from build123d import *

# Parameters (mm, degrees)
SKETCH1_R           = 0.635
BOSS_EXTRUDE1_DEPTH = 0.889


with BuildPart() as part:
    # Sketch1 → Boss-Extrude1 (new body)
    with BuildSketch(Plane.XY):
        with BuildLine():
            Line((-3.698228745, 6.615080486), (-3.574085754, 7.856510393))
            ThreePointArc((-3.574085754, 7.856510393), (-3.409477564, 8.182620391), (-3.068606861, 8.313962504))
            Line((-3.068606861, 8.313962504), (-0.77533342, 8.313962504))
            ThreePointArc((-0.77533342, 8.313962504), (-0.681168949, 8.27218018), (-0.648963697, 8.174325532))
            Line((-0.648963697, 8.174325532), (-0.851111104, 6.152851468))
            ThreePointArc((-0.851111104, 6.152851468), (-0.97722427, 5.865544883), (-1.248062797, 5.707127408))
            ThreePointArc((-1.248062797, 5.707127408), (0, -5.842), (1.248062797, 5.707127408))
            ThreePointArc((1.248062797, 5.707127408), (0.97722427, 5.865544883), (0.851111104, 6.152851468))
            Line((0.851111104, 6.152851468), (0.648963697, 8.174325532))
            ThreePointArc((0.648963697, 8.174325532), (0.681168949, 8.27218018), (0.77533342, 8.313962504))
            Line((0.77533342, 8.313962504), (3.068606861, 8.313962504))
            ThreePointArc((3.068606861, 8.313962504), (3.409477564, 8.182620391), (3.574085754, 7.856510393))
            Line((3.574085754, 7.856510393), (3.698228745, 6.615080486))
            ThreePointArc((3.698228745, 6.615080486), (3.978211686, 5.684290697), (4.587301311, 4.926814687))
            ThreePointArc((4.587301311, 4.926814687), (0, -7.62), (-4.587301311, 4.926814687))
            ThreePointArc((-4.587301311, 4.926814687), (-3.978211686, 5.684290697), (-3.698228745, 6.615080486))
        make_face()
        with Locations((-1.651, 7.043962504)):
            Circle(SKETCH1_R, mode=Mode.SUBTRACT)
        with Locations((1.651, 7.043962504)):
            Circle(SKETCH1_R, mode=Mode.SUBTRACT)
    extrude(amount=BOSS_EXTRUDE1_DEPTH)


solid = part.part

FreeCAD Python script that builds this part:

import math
import FreeCAD as App
import Part
import Sketcher

V = App.Vector
Q = App.Units.Quantity

doc = App.newDocument("Part")
body = doc.addObject("PartDesign::Body", "Body")

# Sketch on XY plane
sketch1 = body.newObject("Sketcher::SketchObject", "Sketch")
sketch1.AttachmentSupport = (doc.getObject("XY_Plane"), [""])
sketch1.MapMode = "FlatFace"
sketch1.addGeometry([
    Part.LineSegment(V(-3.574086, 7.85651, 0), V(-3.698229, 6.61508, 0)),  # 0
    Part.ArcOfCircle(Part.Circle(V(-6.225623, 6.86782, 0), V(0, 0, 1), 2.54), math.radians(-49.833678), math.radians(-5.710593)),  # 1
    Part.ArcOfCircle(Part.Circle(V(0, -0.508, 0), V(0, 0, 1), 7.112), math.radians(130.166322), math.radians(409.833678)),  # 2
    Part.ArcOfCircle(Part.Circle(V(6.225623, 6.86782, 0), V(0, 0, 1), 2.54), math.radians(-174.289407), math.radians(-130.166322)),  # 3
    Part.LineSegment(V(3.698229, 6.61508, 0), V(3.574086, 7.85651, 0)),  # 4
    Part.ArcOfCircle(Part.Circle(V(3.068607, 7.805963, 0), V(0, 0, 1), 0.508), math.radians(5.710593), math.radians(90)),  # 5
    Part.LineSegment(V(3.068607, 8.313963, 0), V(0.775333, 8.313963, 0)),  # 6
    Part.ArcOfCircle(Part.Circle(V(0.775333, 8.186963, 0), V(0, 0, 1), 0.127), math.radians(90), math.radians(185.710593)),  # 7
    Part.LineSegment(V(0.648964, 8.174326, 0), V(0.851111, 6.152851, 0)),  # 8
    Part.ArcOfCircle(Part.Circle(V(1.35659, 6.203399, 0), V(0, 0, 1), 0.508), math.radians(-174.289407), math.radians(-102.33553)),  # 9
    Part.ArcOfCircle(Part.Circle(V(0, 0, 0), V(0, 0, 1), 5.842), math.radians(102.33553), math.radians(437.66447)),  # 10
    Part.ArcOfCircle(Part.Circle(V(-1.35659, 6.203399, 0), V(0, 0, 1), 0.508), math.radians(-77.66447), math.radians(-5.710593)),  # 11
    Part.LineSegment(V(-0.851111, 6.152851, 0), V(-0.648964, 8.174326, 0)),  # 12
    Part.ArcOfCircle(Part.Circle(V(-0.775333, 8.186963, 0), V(0, 0, 1), 0.127), math.radians(-5.710593), math.radians(90)),  # 13
    Part.LineSegment(V(-0.775333, 8.313963, 0), V(-3.068607, 8.313963, 0)),  # 14
    Part.ArcOfCircle(Part.Circle(V(-3.068607, 7.805963, 0), V(0, 0, 1), 0.508), math.radians(90), math.radians(174.289407)),  # 15
    Part.Circle(V(1.651, 7.043963, 0), V(0, 0, 1), 0.635),  # 16
    Part.Circle(V(-1.651, 7.043963, 0), V(0, 0, 1), 0.635),  # 17
], False)
sketch1.addConstraint([
    Sketcher.Constraint("Tangent", 0, 2, 1, 2),
    Sketcher.Constraint("Tangent", 1, 1, 2, 1),
    Sketcher.Constraint("Tangent", 2, 2, 3, 2),
    Sketcher.Constraint("Tangent", 3, 1, 4, 1),
    Sketcher.Constraint("Tangent", 4, 2, 5, 1),
    Sketcher.Constraint("Tangent", 5, 2, 6, 1),
    Sketcher.Constraint("Tangent", 6, 2, 7, 1),
    Sketcher.Constraint("Tangent", 7, 2, 8, 1),
    Sketcher.Constraint("Tangent", 8, 2, 9, 1),
    Sketcher.Constraint("Tangent", 9, 2, 10, 2),
    Sketcher.Constraint("Tangent", 10, 1, 11, 1),
    Sketcher.Constraint("Tangent", 11, 2, 12, 1),
    Sketcher.Constraint("Tangent", 12, 2, 13, 1),
    Sketcher.Constraint("Tangent", 13, 2, 14, 1),
    Sketcher.Constraint("Tangent", 14, 2, 15, 1),
    Sketcher.Constraint("Tangent", 15, 2, 0, 1),
    Sketcher.Constraint("Horizontal", 6),
    Sketcher.Constraint("Horizontal", 14),
    Sketcher.Constraint("Coincident", 10, 3, -1, 1),
    Sketcher.Constraint("Equal", 1, 3),
    Sketcher.Constraint("Equal", 5, 9),
    Sketcher.Constraint("Equal", 9, 11),
    Sketcher.Constraint("Equal", 7, 13),
    Sketcher.Constraint("Equal", 11, 15),
    Sketcher.Constraint("Equal", 16, 17),
    Sketcher.Constraint("Symmetric", 1, 3, 3, 3, -2),
    Sketcher.Constraint("Symmetric", 7, 3, 13, 3, -2),
    Sketcher.Constraint("Symmetric", 16, 3, 17, 3, -2),
    Sketcher.Constraint("Parallel", 4, 8),
    Sketcher.Constraint("Parallel", 0, 12),
    Sketcher.Constraint("Horizontal", 9, 3, 11, 3),
    Sketcher.Constraint("Radius", 1, Q("0.1 in")),
    Sketcher.Constraint("Diameter", 16, Q("0.05 in")),
    Sketcher.Constraint("Radius", 2, Q("0.28 in")),
    Sketcher.Constraint("Radius", 5, Q("0.02 in")),
    Sketcher.Constraint("Radius", 10, Q("0.23 in")),
    Sketcher.Constraint("Radius", 7, Q("0.005 in")),
    Sketcher.Constraint("DistanceY", 2, 3, -1, 1, Q("0.02 in")),
    Sketcher.Constraint("DistanceY", 16, 3, 5, 3, Q("0.03 in")),
    Sketcher.Constraint("DistanceX", -1, 1, 16, 3, Q("0.065 in")),
    Sketcher.Constraint("DistanceY", -1, 1, 9, 3, Q("6.203399 mm")),
    Sketcher.Constraint("DistanceX", 1, 1, -1, 1, Q("4.587301 mm")),
    Sketcher.Constraint("DistanceX", 7, 2, 9, 2, Q("0.599099 mm")),
    Sketcher.Constraint("DistanceY", 9, 2, 7, 2, Q("2.467198 mm")),
])
pad1 = body.newObject("PartDesign::Pad", "Pad")
pad1.Profile = sketch1
pad1.Length = Q("0.035 in")

doc.recompute()
